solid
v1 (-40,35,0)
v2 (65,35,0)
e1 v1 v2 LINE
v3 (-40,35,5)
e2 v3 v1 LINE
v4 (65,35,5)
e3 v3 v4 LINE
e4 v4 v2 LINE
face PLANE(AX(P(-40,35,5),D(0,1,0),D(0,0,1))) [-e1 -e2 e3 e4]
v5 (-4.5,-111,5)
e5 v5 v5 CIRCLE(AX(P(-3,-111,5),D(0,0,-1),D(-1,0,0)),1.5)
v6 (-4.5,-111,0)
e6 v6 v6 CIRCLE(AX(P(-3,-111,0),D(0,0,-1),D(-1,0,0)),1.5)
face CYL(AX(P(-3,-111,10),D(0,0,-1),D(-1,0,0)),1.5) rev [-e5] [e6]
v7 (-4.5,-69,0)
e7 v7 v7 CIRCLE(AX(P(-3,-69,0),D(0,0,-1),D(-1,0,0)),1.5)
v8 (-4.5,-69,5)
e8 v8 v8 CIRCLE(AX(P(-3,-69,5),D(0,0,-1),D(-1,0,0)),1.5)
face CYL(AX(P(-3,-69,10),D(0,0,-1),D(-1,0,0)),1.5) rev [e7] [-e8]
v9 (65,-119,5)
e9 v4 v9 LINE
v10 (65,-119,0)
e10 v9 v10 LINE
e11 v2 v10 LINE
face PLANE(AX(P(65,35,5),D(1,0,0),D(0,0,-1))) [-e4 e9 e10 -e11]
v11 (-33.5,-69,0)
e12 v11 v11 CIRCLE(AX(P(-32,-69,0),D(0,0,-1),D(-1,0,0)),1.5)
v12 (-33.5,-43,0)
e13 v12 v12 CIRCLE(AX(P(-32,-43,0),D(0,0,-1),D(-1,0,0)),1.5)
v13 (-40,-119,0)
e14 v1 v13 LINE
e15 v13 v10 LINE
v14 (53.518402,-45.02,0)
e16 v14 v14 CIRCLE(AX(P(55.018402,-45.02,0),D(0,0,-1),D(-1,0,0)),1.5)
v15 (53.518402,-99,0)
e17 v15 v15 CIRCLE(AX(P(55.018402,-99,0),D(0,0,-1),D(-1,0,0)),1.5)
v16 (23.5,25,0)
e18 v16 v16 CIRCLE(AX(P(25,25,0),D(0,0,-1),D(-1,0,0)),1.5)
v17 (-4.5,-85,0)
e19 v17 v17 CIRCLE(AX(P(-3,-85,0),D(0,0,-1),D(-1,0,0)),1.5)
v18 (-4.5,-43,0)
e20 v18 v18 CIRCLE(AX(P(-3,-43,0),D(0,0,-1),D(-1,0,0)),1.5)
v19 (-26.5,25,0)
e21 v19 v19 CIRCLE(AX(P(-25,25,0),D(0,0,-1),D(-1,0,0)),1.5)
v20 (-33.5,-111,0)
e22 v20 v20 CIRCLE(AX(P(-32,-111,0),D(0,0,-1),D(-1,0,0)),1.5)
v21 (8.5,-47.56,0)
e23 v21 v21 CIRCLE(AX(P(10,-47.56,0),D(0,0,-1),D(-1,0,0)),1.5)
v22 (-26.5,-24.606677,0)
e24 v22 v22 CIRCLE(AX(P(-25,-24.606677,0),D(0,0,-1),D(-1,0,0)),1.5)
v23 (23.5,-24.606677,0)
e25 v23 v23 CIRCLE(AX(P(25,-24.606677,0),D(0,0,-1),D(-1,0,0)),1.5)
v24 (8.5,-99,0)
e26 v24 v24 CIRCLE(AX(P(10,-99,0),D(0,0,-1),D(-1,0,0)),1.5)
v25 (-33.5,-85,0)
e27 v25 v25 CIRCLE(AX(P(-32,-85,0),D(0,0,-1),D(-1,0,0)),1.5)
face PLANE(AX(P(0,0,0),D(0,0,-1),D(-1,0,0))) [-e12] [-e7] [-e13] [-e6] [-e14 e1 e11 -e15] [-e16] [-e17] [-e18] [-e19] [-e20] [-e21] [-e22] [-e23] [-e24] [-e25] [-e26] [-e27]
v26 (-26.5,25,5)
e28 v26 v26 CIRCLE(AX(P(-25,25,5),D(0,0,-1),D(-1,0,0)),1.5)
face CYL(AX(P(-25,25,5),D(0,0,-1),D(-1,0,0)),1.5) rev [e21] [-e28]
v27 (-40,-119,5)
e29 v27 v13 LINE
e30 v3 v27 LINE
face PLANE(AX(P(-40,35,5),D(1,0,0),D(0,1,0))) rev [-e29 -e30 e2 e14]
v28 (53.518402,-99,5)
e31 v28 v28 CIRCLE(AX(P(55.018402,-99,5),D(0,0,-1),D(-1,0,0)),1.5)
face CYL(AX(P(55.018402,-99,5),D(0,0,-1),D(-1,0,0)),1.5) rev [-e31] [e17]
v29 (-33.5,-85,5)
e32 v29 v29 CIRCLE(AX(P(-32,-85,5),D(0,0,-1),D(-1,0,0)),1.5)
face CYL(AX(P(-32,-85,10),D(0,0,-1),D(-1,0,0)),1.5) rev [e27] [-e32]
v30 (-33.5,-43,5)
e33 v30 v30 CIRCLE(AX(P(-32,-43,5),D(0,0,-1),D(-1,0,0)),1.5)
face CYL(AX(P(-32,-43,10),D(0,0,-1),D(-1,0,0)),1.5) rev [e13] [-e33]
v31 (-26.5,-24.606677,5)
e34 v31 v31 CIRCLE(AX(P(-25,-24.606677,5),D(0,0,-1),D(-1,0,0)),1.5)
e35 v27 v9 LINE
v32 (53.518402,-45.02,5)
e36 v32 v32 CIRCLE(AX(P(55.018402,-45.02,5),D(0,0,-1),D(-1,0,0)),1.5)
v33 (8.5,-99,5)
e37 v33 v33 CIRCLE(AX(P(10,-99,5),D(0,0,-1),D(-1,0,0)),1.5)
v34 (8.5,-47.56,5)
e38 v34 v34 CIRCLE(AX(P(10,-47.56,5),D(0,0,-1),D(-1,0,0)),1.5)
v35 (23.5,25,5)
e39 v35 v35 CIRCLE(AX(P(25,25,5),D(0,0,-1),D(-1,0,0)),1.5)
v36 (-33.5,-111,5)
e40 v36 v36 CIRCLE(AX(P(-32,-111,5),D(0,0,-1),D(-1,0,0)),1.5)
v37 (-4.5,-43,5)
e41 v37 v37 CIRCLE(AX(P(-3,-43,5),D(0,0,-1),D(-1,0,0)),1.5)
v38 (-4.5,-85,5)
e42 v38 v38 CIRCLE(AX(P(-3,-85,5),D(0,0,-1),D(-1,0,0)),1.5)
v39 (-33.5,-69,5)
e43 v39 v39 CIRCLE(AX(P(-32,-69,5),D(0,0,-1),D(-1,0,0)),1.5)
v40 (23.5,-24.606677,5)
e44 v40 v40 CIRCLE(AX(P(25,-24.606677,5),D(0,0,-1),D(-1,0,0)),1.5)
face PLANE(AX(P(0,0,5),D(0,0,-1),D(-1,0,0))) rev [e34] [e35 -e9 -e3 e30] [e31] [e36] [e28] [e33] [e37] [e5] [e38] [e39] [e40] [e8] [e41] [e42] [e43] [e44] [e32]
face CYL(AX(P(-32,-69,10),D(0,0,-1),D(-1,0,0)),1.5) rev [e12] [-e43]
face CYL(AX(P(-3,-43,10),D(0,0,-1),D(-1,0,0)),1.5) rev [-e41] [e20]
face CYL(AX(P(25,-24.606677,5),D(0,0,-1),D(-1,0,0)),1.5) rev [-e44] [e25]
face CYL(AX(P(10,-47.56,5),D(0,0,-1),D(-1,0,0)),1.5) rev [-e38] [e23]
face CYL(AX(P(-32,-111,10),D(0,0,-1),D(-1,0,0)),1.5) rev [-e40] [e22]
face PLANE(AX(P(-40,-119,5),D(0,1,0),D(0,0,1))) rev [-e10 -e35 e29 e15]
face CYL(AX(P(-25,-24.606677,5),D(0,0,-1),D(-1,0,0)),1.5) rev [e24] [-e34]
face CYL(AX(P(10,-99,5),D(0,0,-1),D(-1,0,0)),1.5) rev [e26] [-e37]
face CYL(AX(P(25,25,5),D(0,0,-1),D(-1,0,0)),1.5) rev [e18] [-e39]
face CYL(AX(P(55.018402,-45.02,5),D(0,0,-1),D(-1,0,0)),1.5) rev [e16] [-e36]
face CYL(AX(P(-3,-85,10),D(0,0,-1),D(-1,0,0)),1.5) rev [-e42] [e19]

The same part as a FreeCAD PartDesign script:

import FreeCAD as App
import Part
import Sketcher
from FreeCAD import Vector
Q = App.Units.Quantity


def add_polygon(sketch, points):
    """Adds a closed chain of lines whose ends are joined by coincident constraints."""
    first, n = sketch.GeometryCount, len(points)
    for a, b in zip(points, points[1:] + points[:1]):
        sketch.addGeometry(Part.LineSegment(App.Vector(*a, 0), App.Vector(*b, 0)), False)
    for i in range(n):
        sketch.addConstraint(Sketcher.Constraint("Coincident", first + i, 2, first + (i + 1) % n, 1))

doc = App.newDocument("Part")
params = doc.addObject("Spreadsheet::Sheet", "Params")
for row, (alias, value) in enumerate([
    ("sketch1_width", "105 mm"),
    ("sketch1_height", "154 mm"),
    ("pad1_length", "5 mm"),
    ("sketch2_diameter", "3 mm"),
    ("pocket1_length", "10 mm"),
    ("sketch3_diameter", "3 mm"),
    ("sketch4_diameter", "3 mm"),
], start=1):
    params.set(f"A{row}", alias)
    params.set(f"B{row}", "=" + value)
    params.setAlias(f"B{row}", alias)

body = doc.addObject("PartDesign::Body", "Body")

# Sketch on XY plane
sketch1 = body.newObject("Sketcher::SketchObject", "Sketch")
sketch1.AttachmentSupport = (doc.getObject("XY_Plane"), [""])
sketch1.MapMode = "FlatFace"
add_polygon(sketch1, [(-40, 35), (-40, -119), (65, -119), (65, 35)])  # lines 0-3
sketch1.addConstraint([
    Sketcher.Constraint("Vertical", 0),
    Sketcher.Constraint("Horizontal", 1),
    Sketcher.Constraint("Vertical", 2),
    Sketcher.Constraint("Horizontal", 3),
    Sketcher.Constraint("DistanceX", 1, 1, 1, 2, Q("105 mm")),
    Sketcher.Constraint("DistanceY", 0, 2, 0, 1, Q("154 mm")),
    Sketcher.Constraint("DistanceX", 0, 2, -1, 1, Q("40 mm")),
    Sketcher.Constraint("DistanceY", 0, 2, -1, 1, Q("119 mm")),
])
sketch1.setExpression("Constraints[8]", "Params.sketch1_width")
sketch1.setExpression("Constraints[9]", "Params.sketch1_height")
pad1 = body.newObject("PartDesign::Pad", "Pad")
pad1.Profile = sketch1
pad1.setExpression("Length", "Params.pad1_length")

# Sketch on XY plane
sketch2 = body.newObject("Sketcher::SketchObject", "Sketch001")
sketch2.AttachmentSupport = (doc.getObject("XY_Plane"), [""])
sketch2.MapMode = "FlatFace"
sketch2.addGeometry([
    Part.Circle(Vector(-32, -43, 0), Vector(0, 0, 1), 1.5),  # 0
    Part.Circle(Vector(-32, -85, 0), Vector(0, 0, 1), 1.5),  # 1
    Part.Circle(Vector(-3, -111, 0), Vector(0, 0, 1), 1.5),  # 2
    Part.Circle(Vector(-3, -43, 0), Vector(0, 0, 1), 1.5),  # 3
    Part.Circle(Vector(-32, -111, 0), Vector(0, 0, 1), 1.5),  # 4
    Part.Circle(Vector(-3, -85, 0), Vector(0, 0, 1), 1.5),  # 5
    Part.Circle(Vector(-3, -69, 0), Vector(0, 0, 1), 1.5),  # 6
    Part.Circle(Vector(-32, -69, 0), Vector(0, 0, 1), 1.5),  # 7
], False)
sketch2.addConstraint([
    Sketcher.Constraint("Equal", 0, 1),
    Sketcher.Constraint("Equal", 1, 2),
    Sketcher.Constraint("Equal", 2, 3),
    Sketcher.Constraint("Equal", 3, 4),
    Sketcher.Constraint("Equal", 4, 5),
    Sketcher.Constraint("Equal", 5, 6),
    Sketcher.Constraint("Equal", 6, 7),
    Sketcher.Constraint("Horizontal", 0, 3, 3, 3),
    Sketcher.Constraint("Horizontal", 2, 3, 4, 3),
    Sketcher.Constraint("Horizontal", 1, 3, 5, 3),
    Sketcher.Constraint("Horizontal", 6, 3, 7, 3),
    Sketcher.Constraint("Vertical", 0, 3, 1, 3),
    Sketcher.Constraint("Vertical", 2, 3, 3, 3),
    Sketcher.Constraint("Vertical", 1, 3, 4, 3),
    Sketcher.Constraint("Vertical", 3, 3, 5, 3),
    Sketcher.Constraint("Vertical", 5, 3, 6, 3),
    Sketcher.Constraint("Vertical", 4, 3, 7, 3),
    Sketcher.Constraint("Diameter", 0, Q("3 mm")),
    Sketcher.Constraint("DistanceX", 0, 3, -1, 1, Q("32 mm")),
    Sketcher.Constraint("DistanceY", 0, 3, -1, 1, Q("43 mm")),
    Sketcher.Constraint("DistanceY", 1, 3, -1, 1, Q("85 mm")),
    Sketcher.Constraint("DistanceX", 2, 3, -1, 1, Q("3 mm")),
    Sketcher.Constraint("DistanceY", 2, 3, -1, 1, Q("111 mm")),
    Sketcher.Constraint("DistanceY", 6, 3, -1, 1, Q("69 mm")),
])
sketch2.setExpression("Constraints[17]", "Params.sketch2_diameter")
pocket1 = body.newObject("PartDesign::Pocket", "Pocket")
pocket1.Profile = sketch2
pocket1.setExpression("Length", "Params.pocket1_length")
pocket1.Reversed = True

# Sketch on XY plane
sketch3 = body.newObject("Sketcher::SketchObject", "Sketch002")
sketch3.AttachmentSupport = (doc.getObject("XY_Plane"), [""])
sketch3.MapMode = "FlatFace"
sketch3.addGeometry([
    Part.Circle(Vector(25, 25, 0), Vector(0, 0, 1), 1.5),
    Part.Circle(Vector(-25, 25, 0), Vector(0, 0, 1), 1.5),
    Part.Circle(Vector(-25, -24.6, 0), Vector(0, 0, 1), 1.5),
    Part.Circle(Vector(25, -24.6, 0), Vector(0, 0, 1), 1.5),
], False)
sketch3.addConstraint([
    Sketcher.Constraint("Equal", 0, 1),
    Sketcher.Constraint("Equal", 1, 2),
    Sketcher.Constraint("Equal", 2, 3),
    Sketcher.Constraint("Symmetric", 0, 3, 1, 3, -2),
    Sketcher.Constraint("Symmetric", 2, 3, 3, 3, -2),
    Sketcher.Constraint("Vertical", 1, 3, 2, 3),
    Sketcher.Constraint("Diameter", 0, Q("3 mm")),
    Sketcher.Constraint("DistanceX", -1, 1, 0, 3, Q("25 mm")),
    Sketcher.Constraint("DistanceY", -1, 1, 0, 3, Q("25 mm")),
    Sketcher.Constraint("DistanceY", 2, 3, -1, 1, Q("24.606677 mm")),
])
sketch3.setExpression("Constraints[6]", "Params.sketch3_diameter")
pocket2 = body.newObject("PartDesign::Pocket", "Pocket001")
pocket2.Profile = sketch3
pocket2.Type = "ThroughAll"
pocket2.Reversed = True

# Sketch on XY plane
sketch4 = body.newObject("Sketcher::SketchObject", "Sketch003")
sketch4.AttachmentSupport = (doc.getObject("XY_Plane"), [""])
sketch4.MapMode = "FlatFace"
sketch4.addGeometry([
    Part.Circle(Vector(10, -47.6, 0), Vector(0, 0, 1), 1.5),
    Part.Circle(Vector(55, -45, 0), Vector(0, 0, 1), 1.5),
    Part.Circle(Vector(55, -99, 0), Vector(0, 0, 1), 1.5),
    Part.Circle(Vector(10, -99, 0), Vector(0, 0, 1), 1.5),
], False)
sketch4.addConstraint([
    Sketcher.Constraint("Equal", 0, 1),
    Sketcher.Constraint("Equal", 1, 2),
    Sketcher.Constraint("Equal", 2, 3),
    Sketcher.Constraint("Horizontal", 2, 3, 3, 3),
    Sketcher.Constraint("Vertical", 1, 3, 2, 3),
    Sketcher.Constraint("Vertical", 0, 3, 3, 3),
    Sketcher.Constraint("Diameter", 0, Q("3 mm")),
    Sketcher.Constraint("DistanceX", -1, 1, 0, 3, Q("10 mm")),
    Sketcher.Constraint("DistanceY", 2, 3, -1, 1, Q("99 mm")),
    Sketcher.Constraint("DistanceY", 0, 3, -1, 1, Q("47.56 mm")),
    Sketcher.Constraint("DistanceY", 1, 3, -1, 1, Q("45.02 mm")),
    Sketcher.Constraint("DistanceX", -1, 1, 1, 3, Q("55.018402 mm")),
])
sketch4.setExpression("Constraints[6]", "Params.sketch4_diameter")
pocket3 = body.newObject("PartDesign::Pocket", "Pocket002")
pocket3.Profile = sketch4
pocket3.Type = "ThroughAll"
pocket3.Reversed = True

doc.recompute()
